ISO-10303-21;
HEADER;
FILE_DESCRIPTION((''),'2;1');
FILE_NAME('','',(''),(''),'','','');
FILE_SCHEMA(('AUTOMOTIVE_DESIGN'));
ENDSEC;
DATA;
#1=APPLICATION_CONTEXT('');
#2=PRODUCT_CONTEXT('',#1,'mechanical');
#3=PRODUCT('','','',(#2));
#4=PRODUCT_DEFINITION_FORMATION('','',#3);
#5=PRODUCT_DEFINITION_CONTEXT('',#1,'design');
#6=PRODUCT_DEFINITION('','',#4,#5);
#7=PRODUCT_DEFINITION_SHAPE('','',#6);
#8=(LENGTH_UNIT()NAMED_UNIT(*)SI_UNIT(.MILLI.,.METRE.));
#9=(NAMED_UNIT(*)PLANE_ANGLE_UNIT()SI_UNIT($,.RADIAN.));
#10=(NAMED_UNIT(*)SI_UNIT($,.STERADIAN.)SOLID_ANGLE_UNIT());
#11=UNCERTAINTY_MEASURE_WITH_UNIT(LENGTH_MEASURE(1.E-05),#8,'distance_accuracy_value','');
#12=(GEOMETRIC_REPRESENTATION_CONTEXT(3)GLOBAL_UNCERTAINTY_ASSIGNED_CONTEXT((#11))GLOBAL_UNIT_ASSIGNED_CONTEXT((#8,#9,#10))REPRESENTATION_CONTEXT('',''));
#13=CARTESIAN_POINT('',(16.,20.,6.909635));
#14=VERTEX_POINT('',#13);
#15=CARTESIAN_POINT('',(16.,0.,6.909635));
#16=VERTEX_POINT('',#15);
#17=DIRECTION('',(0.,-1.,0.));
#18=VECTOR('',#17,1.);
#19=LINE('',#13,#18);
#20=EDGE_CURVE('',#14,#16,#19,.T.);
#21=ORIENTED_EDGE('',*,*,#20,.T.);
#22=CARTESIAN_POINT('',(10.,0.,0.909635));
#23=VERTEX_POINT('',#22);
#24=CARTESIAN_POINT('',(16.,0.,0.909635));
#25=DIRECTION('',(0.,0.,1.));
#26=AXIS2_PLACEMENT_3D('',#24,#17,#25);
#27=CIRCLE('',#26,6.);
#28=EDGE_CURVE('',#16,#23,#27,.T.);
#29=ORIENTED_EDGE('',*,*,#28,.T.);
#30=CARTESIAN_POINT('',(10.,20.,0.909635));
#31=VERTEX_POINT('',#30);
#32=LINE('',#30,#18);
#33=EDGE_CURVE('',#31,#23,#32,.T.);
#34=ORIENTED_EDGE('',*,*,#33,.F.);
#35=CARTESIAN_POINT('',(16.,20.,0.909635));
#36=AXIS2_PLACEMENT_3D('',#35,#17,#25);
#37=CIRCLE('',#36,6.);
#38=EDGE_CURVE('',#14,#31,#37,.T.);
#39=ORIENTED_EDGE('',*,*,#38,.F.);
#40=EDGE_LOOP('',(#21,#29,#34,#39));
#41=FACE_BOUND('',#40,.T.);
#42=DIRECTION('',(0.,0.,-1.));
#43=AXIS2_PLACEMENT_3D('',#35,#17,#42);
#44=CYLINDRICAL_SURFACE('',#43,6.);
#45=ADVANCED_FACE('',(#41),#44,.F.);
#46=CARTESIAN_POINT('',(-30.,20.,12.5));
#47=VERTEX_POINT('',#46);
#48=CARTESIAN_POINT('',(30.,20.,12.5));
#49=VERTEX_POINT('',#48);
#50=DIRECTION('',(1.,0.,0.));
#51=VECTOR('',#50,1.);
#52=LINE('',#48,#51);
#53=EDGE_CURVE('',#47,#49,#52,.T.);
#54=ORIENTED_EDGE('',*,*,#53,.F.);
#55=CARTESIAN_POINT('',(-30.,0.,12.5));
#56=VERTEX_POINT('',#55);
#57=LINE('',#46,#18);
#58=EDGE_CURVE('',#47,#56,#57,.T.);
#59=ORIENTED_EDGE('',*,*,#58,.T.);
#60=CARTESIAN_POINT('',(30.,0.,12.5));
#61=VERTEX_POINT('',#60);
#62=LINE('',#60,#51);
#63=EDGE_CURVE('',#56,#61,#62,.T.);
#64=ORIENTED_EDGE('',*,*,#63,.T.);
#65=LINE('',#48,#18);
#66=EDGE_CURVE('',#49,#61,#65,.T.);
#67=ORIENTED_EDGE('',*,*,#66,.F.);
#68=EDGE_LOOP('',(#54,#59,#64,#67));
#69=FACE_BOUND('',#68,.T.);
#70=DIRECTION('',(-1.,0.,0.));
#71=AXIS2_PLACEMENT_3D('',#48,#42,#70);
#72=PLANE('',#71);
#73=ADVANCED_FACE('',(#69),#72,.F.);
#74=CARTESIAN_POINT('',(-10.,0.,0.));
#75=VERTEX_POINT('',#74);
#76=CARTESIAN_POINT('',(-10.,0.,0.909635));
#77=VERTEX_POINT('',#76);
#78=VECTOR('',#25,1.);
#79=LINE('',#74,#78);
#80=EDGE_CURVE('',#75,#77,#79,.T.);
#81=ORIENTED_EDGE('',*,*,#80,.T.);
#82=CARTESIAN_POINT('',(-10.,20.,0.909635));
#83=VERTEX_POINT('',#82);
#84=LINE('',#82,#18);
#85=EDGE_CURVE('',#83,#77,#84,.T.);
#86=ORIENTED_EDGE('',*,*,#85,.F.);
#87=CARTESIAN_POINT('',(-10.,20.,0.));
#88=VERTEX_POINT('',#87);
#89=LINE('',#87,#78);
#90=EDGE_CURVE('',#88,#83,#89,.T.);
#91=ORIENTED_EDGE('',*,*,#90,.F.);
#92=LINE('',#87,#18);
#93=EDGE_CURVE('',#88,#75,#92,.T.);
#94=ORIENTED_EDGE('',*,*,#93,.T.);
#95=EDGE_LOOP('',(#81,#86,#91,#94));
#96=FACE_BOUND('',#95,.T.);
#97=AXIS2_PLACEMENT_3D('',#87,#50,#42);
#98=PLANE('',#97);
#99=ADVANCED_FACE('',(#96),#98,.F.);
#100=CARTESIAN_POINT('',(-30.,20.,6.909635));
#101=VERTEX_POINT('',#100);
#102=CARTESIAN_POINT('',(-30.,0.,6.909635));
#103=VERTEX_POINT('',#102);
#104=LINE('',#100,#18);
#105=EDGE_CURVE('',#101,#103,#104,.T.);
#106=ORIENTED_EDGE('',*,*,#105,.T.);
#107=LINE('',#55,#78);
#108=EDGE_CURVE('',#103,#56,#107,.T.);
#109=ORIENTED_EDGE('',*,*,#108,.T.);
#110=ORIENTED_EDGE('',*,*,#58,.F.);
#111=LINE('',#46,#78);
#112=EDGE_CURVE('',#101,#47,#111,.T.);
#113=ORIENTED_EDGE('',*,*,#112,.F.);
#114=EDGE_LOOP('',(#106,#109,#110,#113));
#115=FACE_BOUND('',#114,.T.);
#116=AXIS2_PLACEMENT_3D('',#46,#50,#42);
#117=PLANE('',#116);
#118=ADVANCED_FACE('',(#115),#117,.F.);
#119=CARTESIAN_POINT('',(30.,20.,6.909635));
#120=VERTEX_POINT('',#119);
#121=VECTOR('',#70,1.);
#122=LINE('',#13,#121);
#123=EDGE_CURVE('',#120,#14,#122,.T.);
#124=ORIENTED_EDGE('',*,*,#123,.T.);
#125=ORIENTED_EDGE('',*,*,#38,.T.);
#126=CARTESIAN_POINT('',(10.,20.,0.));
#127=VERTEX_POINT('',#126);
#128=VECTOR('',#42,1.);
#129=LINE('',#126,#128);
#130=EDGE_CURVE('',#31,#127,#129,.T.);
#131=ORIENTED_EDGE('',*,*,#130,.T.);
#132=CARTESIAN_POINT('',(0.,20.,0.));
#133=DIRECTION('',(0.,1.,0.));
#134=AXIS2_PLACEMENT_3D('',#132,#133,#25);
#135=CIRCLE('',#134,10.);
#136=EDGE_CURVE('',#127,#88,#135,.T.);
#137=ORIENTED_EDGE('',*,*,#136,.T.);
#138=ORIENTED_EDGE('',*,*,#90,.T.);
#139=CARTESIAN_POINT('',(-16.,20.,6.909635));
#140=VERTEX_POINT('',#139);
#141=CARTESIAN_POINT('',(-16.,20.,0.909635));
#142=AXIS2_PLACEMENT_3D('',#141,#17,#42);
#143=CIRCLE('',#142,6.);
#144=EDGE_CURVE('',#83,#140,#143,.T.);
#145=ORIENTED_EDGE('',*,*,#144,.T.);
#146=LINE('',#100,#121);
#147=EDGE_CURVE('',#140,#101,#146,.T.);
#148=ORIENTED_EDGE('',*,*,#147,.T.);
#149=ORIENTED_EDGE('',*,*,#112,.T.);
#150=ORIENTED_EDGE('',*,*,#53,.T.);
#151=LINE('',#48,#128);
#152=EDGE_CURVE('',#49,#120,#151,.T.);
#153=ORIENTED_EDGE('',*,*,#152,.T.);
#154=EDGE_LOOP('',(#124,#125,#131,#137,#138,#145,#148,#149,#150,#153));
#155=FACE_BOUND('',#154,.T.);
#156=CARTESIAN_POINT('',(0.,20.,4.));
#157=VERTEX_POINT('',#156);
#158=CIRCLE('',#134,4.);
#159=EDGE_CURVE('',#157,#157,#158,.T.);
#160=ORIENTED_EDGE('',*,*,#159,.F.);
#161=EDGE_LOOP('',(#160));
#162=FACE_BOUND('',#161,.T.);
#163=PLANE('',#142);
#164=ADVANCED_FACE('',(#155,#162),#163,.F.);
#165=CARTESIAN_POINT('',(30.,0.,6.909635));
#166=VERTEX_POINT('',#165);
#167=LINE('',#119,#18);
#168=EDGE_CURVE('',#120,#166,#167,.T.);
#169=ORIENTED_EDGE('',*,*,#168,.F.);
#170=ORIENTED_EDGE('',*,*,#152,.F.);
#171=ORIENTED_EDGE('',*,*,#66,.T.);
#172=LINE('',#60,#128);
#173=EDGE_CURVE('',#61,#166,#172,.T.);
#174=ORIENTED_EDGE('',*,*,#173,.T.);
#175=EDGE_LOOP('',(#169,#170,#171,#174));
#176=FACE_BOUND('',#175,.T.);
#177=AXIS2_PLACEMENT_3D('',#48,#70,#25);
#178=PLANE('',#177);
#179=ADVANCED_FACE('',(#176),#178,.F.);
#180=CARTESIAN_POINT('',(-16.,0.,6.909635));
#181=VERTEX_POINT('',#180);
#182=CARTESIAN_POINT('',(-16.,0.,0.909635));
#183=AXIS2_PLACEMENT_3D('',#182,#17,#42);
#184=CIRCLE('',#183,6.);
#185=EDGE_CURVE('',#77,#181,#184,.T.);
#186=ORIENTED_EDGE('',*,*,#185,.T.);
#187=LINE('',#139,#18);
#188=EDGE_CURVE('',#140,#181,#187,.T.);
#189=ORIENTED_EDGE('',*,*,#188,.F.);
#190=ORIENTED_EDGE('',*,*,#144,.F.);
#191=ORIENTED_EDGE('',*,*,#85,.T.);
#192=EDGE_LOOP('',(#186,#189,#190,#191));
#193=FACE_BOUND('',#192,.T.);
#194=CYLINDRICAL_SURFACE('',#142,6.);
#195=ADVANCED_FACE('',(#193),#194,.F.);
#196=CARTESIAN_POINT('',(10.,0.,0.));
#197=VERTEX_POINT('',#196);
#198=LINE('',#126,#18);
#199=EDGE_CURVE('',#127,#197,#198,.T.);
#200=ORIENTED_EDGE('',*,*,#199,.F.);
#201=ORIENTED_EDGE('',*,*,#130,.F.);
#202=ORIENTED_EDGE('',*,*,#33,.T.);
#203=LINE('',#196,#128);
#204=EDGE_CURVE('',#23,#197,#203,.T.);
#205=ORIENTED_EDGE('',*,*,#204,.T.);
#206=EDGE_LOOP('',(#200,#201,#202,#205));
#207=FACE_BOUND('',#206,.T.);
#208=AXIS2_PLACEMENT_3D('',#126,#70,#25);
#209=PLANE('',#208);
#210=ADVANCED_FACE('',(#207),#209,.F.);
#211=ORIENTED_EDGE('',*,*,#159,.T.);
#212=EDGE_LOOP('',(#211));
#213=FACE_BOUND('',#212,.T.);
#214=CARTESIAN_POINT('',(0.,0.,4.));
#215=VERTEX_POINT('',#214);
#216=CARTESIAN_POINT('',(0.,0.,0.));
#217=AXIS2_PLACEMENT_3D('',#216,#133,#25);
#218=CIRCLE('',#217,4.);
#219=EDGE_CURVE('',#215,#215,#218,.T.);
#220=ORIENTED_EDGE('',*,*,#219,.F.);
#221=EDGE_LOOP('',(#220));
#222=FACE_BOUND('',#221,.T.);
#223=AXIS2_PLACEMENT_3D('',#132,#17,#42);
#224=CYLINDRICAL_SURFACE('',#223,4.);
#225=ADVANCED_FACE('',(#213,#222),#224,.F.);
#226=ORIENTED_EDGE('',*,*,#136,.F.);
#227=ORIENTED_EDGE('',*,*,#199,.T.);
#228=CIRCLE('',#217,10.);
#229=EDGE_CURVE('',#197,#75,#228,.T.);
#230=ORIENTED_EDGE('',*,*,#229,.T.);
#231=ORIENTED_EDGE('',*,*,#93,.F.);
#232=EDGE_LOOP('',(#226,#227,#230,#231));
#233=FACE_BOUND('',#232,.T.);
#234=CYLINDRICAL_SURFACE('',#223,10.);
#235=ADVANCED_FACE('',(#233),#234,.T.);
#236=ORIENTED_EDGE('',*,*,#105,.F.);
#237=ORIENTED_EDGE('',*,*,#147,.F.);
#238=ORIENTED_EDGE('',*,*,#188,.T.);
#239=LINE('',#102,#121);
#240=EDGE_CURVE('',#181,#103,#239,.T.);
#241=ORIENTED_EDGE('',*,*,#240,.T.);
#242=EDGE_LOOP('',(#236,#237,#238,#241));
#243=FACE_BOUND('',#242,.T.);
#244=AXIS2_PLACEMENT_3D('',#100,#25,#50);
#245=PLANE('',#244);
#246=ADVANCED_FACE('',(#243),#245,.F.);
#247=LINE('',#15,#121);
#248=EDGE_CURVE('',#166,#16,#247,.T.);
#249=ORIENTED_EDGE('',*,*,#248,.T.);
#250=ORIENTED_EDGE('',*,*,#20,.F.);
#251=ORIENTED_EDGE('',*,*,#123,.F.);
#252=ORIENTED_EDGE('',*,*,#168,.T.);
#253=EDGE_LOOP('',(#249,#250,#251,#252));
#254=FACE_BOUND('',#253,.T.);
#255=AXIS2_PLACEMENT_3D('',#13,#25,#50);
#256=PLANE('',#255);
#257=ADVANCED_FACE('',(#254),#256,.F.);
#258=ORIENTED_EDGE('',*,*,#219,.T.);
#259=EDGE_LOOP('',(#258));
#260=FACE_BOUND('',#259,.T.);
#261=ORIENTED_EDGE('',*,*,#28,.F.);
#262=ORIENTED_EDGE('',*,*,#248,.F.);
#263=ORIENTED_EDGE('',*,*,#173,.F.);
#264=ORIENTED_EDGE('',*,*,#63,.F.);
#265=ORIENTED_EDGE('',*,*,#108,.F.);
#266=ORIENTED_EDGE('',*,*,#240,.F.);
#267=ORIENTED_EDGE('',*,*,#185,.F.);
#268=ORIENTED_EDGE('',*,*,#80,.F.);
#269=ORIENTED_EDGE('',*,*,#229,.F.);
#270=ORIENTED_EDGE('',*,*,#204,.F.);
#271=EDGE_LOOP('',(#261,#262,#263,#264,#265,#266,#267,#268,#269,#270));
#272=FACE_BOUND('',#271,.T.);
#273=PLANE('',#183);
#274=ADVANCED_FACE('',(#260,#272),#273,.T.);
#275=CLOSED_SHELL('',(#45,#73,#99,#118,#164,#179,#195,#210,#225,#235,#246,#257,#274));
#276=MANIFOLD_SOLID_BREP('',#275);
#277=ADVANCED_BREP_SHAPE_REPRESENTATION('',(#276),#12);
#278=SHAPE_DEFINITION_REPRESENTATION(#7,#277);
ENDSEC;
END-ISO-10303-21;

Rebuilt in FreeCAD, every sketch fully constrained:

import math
import FreeCAD as App
import Part
import Sketcher

doc = App.newDocument("Part")
params = doc.addObject("Spreadsheet::Sheet", "Params")
for row, (alias, value) in enumerate([
    ("sketch1_diameter", "8 mm"),
    ("sketch1_radius", "6 mm"),
    ("sketch1_radius2", "10 mm"),
    ("sketch1_width", "60 mm"),
    ("pad1_length", "20 mm"),
], start=1):
    params.set(f"A{row}", alias)
    params.set(f"B{row}", "=" + value)
    params.setAlias(f"B{row}", alias)

body = doc.addObject("PartDesign::Body", "Body")

# Sketch on XZ plane
sketch1 = body.newObject("Sketcher::SketchObject", "Sketch")
sketch1.AttachmentSupport = (doc.getObject("XZ_Plane"), [""])
sketch1.MapMode = "FlatFace"
sketch1.addGeometry([
    Part.LineSegment(App.Vector(-30, 12.5, 0), App.Vector(30, 12.5, 0)),  # 0
    Part.LineSegment(App.Vector(30, 12.5, 0), App.Vector(30, 6.9, 0)),  # 1
    Part.LineSegment(App.Vector(30, 6.9, 0), App.Vector(16, 6.9, 0)),  # 2
    Part.ArcOfCircle(Part.Circle(App.Vector(16, 0.9, 0), App.Vector(0, 0, 1), 6), math.radians(90), math.radians(180)),  # 3
    Part.LineSegment(App.Vector(10, 0.9, 0), App.Vector(10, 0, 0)),  # 4
    Part.ArcOfCircle(Part.Circle(App.Vector(0, 0, 0), App.Vector(0, 0, 1), 10), math.radians(180), math.radians(360)),  # 5
    Part.LineSegment(App.Vector(-10, 0, 0), App.Vector(-10, 0.9, 0)),  # 6
    Part.ArcOfCircle(Part.Circle(App.Vector(-16, 0.9, 0), App.Vector(0, 0, 1), 6), math.radians(0), math.radians(90)),  # 7
    Part.LineSegment(App.Vector(-16, 6.9, 0), App.Vector(-30, 6.9, 0)),  # 8
    Part.LineSegment(App.Vector(-30, 6.9, 0), App.Vector(-30, 12.5, 0)),  # 9
    Part.Circle(App.Vector(0, 0, 0), App.Vector(0, 0, 1), 4),  # 10
], False)
sketch1.addConstraint([
    Sketcher.Constraint("Coincident", 0, 2, 1, 1),
    Sketcher.Constraint("Coincident", 1, 2, 2, 1),
    Sketcher.Constraint("Tangent", 2, 2, 3, 1),
    Sketcher.Constraint("Tangent", 3, 2, 4, 1),
    Sketcher.Constraint("Tangent", 4, 2, 5, 2),
    Sketcher.Constraint("Tangent", 5, 1, 6, 1),
    Sketcher.Constraint("Tangent", 6, 2, 7, 1),
    Sketcher.Constraint("Tangent", 7, 2, 8, 1),
    Sketcher.Constraint("Coincident", 8, 2, 9, 1),
    Sketcher.Constraint("Coincident", 9, 2, 0, 1),
    Sketcher.Constraint("Horizontal", 0),
    Sketcher.Constraint("Vertical", 1),
    Sketcher.Constraint("Horizontal", 2),
    Sketcher.Constraint("Vertical", 4),
    Sketcher.Constraint("Vertical", 6),
    Sketcher.Constraint("Horizontal", 8),
    Sketcher.Constraint("Vertical", 9),
    Sketcher.Constraint("Coincident", 5, 3, -1, 1),
    Sketcher.Constraint("Coincident", 10, 3, -1, 1),
    Sketcher.Constraint("Equal", 3, 7),
    Sketcher.Constraint("Symmetric", 1, 2, 8, 2, -2),
    Sketcher.Constraint("Diameter", 10, 8.0),
    Sketcher.Constraint("Radius", 3, 6.0),
    Sketcher.Constraint("Radius", 5, 10.0),
    Sketcher.Constraint("DistanceX", 0, 1, 0, 2, 60.0),
    Sketcher.Constraint("DistanceY", -1, 1, 0, 2, 12.5),
    Sketcher.Constraint("DistanceY", 1, 2, 1, 1, 5.590365),
])
sketch1.setExpression("Constraints[21]", "Params.sketch1_diameter")
sketch1.setExpression("Constraints[22]", "Params.sketch1_radius")
sketch1.setExpression("Constraints[23]", "Params.sketch1_radius2")
sketch1.setExpression("Constraints[24]", "Params.sketch1_width")
pad1 = body.newObject("PartDesign::Pad", "Pad")
pad1.Profile = sketch1
pad1.setExpression("Length", "Params.pad1_length")
pad1.Reversed = True

doc.recompute()
